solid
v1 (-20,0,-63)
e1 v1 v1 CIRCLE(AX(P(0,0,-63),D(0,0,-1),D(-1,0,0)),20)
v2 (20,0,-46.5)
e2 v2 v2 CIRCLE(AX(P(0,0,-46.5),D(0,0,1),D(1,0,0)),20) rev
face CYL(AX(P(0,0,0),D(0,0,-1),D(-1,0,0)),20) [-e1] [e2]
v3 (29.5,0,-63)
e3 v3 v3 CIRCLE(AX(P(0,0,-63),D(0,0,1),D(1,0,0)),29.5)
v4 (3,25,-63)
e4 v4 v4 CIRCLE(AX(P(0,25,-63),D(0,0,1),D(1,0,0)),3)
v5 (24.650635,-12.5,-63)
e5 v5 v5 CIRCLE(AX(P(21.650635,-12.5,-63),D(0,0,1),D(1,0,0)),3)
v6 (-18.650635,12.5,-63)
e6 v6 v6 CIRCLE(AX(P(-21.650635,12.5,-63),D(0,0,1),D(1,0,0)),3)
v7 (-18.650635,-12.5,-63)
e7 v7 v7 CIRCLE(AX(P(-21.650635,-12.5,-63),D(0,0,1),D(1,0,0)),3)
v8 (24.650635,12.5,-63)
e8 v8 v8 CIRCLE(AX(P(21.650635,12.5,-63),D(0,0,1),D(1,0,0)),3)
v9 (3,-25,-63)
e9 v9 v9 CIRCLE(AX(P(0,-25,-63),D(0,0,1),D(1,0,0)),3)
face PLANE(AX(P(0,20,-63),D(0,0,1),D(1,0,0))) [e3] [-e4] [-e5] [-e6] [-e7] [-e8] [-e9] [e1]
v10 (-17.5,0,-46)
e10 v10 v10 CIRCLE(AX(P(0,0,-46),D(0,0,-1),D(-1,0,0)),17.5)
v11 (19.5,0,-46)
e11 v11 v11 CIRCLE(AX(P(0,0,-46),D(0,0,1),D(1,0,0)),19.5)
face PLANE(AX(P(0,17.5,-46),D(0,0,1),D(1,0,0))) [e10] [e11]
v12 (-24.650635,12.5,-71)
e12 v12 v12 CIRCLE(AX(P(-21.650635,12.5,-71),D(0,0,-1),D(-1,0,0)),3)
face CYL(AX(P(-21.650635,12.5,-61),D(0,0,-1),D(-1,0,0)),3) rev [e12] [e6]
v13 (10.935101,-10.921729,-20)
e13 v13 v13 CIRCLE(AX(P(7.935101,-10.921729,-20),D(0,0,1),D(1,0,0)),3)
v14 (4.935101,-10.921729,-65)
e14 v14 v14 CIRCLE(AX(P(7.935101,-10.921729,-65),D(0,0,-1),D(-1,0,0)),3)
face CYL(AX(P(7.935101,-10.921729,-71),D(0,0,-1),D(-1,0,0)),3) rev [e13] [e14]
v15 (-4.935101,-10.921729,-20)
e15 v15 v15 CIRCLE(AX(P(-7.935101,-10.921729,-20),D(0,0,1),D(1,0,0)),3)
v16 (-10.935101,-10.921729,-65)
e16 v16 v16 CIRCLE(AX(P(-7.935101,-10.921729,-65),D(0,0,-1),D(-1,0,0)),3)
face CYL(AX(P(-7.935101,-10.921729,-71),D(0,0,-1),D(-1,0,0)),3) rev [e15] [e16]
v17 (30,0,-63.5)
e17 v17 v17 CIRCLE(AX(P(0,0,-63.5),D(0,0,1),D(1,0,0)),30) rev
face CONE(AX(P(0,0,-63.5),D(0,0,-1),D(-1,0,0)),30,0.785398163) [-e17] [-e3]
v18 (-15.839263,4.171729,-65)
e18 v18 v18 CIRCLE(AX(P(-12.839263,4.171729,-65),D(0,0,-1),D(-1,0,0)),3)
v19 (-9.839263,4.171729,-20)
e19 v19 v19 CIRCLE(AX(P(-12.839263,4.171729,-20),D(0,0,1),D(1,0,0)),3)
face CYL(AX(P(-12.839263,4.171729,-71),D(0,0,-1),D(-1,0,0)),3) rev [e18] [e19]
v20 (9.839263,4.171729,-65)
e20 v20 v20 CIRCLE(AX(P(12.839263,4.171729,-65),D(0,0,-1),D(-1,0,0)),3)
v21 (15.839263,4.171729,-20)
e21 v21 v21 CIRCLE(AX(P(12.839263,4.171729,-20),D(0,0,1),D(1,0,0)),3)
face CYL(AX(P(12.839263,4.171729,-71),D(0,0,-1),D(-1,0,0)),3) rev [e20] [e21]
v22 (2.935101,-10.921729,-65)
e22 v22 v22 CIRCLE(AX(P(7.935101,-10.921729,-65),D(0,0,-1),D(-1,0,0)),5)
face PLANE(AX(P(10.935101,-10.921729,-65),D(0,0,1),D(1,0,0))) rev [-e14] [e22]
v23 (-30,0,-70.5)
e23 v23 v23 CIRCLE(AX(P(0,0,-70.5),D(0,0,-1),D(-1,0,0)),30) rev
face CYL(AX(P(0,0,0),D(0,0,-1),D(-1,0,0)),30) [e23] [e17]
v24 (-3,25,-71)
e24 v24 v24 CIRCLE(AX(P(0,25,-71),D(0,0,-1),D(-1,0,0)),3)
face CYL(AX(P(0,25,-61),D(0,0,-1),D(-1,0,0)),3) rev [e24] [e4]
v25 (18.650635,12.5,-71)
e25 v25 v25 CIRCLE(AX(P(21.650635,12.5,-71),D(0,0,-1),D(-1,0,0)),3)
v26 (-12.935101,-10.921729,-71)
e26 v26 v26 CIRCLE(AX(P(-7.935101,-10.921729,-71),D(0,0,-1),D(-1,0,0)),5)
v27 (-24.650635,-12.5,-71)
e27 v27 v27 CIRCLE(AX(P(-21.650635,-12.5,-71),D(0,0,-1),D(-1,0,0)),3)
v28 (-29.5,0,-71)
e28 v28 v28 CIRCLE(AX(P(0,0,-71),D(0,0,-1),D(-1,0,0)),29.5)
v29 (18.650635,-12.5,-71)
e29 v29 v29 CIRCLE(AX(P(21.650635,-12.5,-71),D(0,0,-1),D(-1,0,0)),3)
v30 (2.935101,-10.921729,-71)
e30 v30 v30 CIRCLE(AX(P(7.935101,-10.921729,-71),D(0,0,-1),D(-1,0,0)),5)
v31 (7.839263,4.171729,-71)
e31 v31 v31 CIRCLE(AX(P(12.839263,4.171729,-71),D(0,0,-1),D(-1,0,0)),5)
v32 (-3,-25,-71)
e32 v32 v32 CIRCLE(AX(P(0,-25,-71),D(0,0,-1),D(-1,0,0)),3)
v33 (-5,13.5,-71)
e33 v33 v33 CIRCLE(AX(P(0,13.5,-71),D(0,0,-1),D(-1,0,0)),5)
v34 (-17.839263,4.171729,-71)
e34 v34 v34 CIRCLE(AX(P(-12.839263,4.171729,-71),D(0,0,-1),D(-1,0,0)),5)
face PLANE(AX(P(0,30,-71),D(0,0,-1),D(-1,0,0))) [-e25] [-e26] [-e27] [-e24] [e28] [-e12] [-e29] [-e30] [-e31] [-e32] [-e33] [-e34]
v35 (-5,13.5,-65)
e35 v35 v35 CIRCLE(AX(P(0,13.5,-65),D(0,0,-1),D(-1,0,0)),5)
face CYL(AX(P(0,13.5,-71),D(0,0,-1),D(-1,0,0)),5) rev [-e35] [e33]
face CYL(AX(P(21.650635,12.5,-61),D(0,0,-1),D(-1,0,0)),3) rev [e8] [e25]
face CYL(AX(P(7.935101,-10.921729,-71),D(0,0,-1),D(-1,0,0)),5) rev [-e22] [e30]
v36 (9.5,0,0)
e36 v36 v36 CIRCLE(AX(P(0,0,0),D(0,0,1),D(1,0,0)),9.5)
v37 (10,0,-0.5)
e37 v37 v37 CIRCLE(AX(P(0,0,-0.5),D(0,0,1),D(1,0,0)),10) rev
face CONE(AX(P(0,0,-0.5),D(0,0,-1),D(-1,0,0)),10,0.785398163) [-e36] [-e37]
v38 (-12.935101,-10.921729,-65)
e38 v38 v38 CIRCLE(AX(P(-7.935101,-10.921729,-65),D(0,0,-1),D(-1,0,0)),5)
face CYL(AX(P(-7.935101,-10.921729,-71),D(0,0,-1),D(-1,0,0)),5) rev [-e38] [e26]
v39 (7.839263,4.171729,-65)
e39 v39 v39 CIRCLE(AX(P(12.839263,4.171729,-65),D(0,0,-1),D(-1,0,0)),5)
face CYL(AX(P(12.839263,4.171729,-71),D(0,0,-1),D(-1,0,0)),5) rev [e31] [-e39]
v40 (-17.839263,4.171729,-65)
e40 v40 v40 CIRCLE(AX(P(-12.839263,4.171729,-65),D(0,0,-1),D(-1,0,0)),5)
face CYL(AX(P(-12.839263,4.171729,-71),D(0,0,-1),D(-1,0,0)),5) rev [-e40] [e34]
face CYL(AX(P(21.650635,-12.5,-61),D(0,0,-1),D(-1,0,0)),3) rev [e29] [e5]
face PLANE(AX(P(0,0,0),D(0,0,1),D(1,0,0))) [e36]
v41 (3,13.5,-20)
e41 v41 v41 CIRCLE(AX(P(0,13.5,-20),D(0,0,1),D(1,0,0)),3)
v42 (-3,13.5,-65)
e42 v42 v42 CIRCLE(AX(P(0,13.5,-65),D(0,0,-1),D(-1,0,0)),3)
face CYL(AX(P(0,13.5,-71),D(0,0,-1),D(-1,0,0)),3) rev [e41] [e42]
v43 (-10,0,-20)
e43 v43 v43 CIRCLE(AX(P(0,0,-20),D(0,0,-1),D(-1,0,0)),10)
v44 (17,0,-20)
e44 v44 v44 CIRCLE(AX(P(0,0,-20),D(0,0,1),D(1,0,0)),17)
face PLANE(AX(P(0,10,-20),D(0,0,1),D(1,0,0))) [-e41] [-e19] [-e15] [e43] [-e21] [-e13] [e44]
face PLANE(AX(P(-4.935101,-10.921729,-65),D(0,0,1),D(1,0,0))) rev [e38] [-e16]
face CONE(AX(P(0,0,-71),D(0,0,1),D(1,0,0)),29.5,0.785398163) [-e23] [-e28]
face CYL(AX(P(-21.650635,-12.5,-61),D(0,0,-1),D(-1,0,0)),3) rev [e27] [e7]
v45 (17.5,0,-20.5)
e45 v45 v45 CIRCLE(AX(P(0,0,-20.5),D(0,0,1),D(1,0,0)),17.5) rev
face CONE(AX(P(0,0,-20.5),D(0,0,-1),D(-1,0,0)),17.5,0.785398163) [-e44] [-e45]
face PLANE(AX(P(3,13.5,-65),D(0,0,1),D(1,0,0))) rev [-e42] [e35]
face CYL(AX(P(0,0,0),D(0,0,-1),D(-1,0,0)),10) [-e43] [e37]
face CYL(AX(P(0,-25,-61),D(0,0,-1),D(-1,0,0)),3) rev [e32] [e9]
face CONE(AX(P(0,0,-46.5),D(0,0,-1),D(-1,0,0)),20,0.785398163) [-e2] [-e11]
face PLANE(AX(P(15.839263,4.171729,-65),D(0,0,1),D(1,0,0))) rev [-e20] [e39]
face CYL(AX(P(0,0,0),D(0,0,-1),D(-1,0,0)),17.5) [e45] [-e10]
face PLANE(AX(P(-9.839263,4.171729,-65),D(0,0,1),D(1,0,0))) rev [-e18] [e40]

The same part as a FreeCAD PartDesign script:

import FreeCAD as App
import Part
import Sketcher


def edges_at(feature, points):
    """Names of the edges that pass closest to the given points."""
    edges = feature.Shape.Edges
    near = lambda p: min(range(len(edges)), key=lambda i: edges[i].distToShape(Part.Vertex(*p))[0])
    return sorted({f"Edge{near(p) + 1}" for p in points})


def add_polygon(sketch, points):
    """Adds a closed chain of lines whose ends are joined by coincident constraints."""
    first, n = sketch.GeometryCount, len(points)
    for a, b in zip(points, points[1:] + points[:1]):
        sketch.addGeometry(Part.LineSegment(App.Vector(*a, 0), App.Vector(*b, 0)), False)
    for i in range(n):
        sketch.addConstraint(Sketcher.Constraint("Coincident", first + i, 2, first + (i + 1) % n, 1))

doc = App.newDocument("Part")
params = doc.addObject("Spreadsheet::Sheet", "Params")
for row, (alias, value) in enumerate([
    ("sketch1_width", "10 mm"),
    ("sketch1_width2", "30 mm"),
    ("sketch1_height", "71 mm"),
    ("sketch1_height2", "8 mm"),
    ("sketch1_height3", "17 mm"),
    ("revolution_angle", "360 deg"),
    ("sketch2_diameter", "6 mm"),
    ("pocket1_length", "10 mm"),
    ("sketch3_diameter", "6 mm"),
    ("hole_diameter", "6 mm"),
    ("hole_cbore_diameter", "10 mm"),
    ("hole_cbore_depth", "6 mm"),
    ("chamfer_size", "0.5 mm"),
], start=1):
    params.set(f"A{row}", alias)
    params.set(f"B{row}", "=" + value)
    params.setAlias(f"B{row}", alias)

body = doc.addObject("PartDesign::Body", "Body")

# Sketch on YZ plane
sketch1 = body.newObject("Sketcher::SketchObject", "Sketch")
sketch1.AttachmentSupport = (doc.getObject("YZ_Plane"), [""])
sketch1.MapMode = "FlatFace"
add_polygon(sketch1, [(10, 0), (0, 0), (0, -71), (30, -71), (30, -63), (20, -63), (20, -46), (17.5, -46), (17.5, -20), (10, -20)])  # lines 0-9
sketch1.addConstraint([
    Sketcher.Constraint("Horizontal", 0),
    Sketcher.Constraint("Vertical", 1),
    Sketcher.Constraint("Horizontal", 2),
    Sketcher.Constraint("Vertical", 3),
    Sketcher.Constraint("Horizontal", 4),
    Sketcher.Constraint("Vertical", 5),
    Sketcher.Constraint("Horizontal", 6),
    Sketcher.Constraint("Vertical", 7),
    Sketcher.Constraint("Horizontal", 8),
    Sketcher.Constraint("Vertical", 9),
    Sketcher.Constraint("Coincident", 0, 2, -1, 1),
    Sketcher.Constraint("Equal", 0, 4),
    Sketcher.Constraint("DistanceX", 0, 2, 0, 1, 10.0),
    Sketcher.Constraint("DistanceX", 2, 1, 2, 2, 30.0),
    Sketcher.Constraint("DistanceY", 1, 2, 1, 1, 71.0),
    Sketcher.Constraint("DistanceY", 3, 1, 3, 2, 8.0),
    Sketcher.Constraint("DistanceY", 5, 1, 5, 2, 17.0),
    Sketcher.Constraint("DistanceY", 7, 1, 7, 2, 26.0),
    Sketcher.Constraint("DistanceX", 6, 2, 6, 1, 2.5),
])
sketch1.setExpression("Constraints[22]", "Params.sketch1_width")
sketch1.setExpression("Constraints[23]", "Params.sketch1_width2")
sketch1.setExpression("Constraints[24]", "Params.sketch1_height")
sketch1.setExpression("Constraints[25]", "Params.sketch1_height2")
sketch1.setExpression("Constraints[26]", "Params.sketch1_height3")
revolution = body.newObject("PartDesign::Revolution", "Revolution")
revolution.Profile = sketch1
revolution.ReferenceAxis = (sketch1, ["V_Axis"])
revolution.setExpression("Angle", "Params.revolution_angle")

# Sketch on XY plane
sketch2 = body.newObject("Sketcher::SketchObject", "Sketch001")
sketch2.AttachmentSupport = (doc.getObject("XY_Plane"), [""])
sketch2.MapMode = "FlatFace"
sketch2.AttachmentOffset = App.Placement(App.Vector(0, 0, -71), App.Rotation())
sketch2.addGeometry([
    Part.Circle(App.Vector(0, 25, 0), App.Vector(0, 0, 1), 3),  # 0
    Part.Circle(App.Vector(-21.650635, 12.5, 0), App.Vector(0, 0, 1), 3),  # 1
    Part.Circle(App.Vector(-21.650635, -12.5, 0), App.Vector(0, 0, 1), 3),  # 2
    Part.Circle(App.Vector(0, -25, 0), App.Vector(0, 0, 1), 3),  # 3
    Part.Circle(App.Vector(21.650635, -12.5, 0), App.Vector(0, 0, 1), 3),  # 4
    Part.Circle(App.Vector(21.650635, 12.5, 0), App.Vector(0, 0, 1), 3),  # 5
], False)
sketch2.addConstraint([
    Sketcher.Constraint("Equal", 0, 1),
    Sketcher.Constraint("Equal", 1, 2),
    Sketcher.Constraint("Equal", 2, 3),
    Sketcher.Constraint("Equal", 3, 4),
    Sketcher.Constraint("Equal", 4, 5),
    Sketcher.Constraint("Symmetric", 0, 3, 3, 3, -1, 1),
    Sketcher.Constraint("Symmetric", 1, 3, 4, 3, -1, 1),
    Sketcher.Constraint("Symmetric", 2, 3, 5, 3, -1, 1),
    Sketcher.Constraint("Symmetric", 2, 3, 4, 3, -2),
    Sketcher.Constraint("PointOnObject", 0, 3, -2),
    Sketcher.Constraint("Diameter", 0, 6.0),
    Sketcher.Constraint("DistanceY", -1, 1, 0, 3, 25.0),
    Sketcher.Constraint("DistanceY", 2, 3, 1, 3, 25.0),
    Sketcher.Constraint("DistanceX", 2, 3, 4, 3, 43.30127),
])
sketch2.setExpression("Constraints[10]", "Params.sketch2_diameter")
pocket1 = body.newObject("PartDesign::Pocket", "Pocket")
pocket1.Profile = sketch2
pocket1.setExpression("Length", "Params.pocket1_length")
pocket1.Reversed = True

# Sketch on XY plane
sketch3 = body.newObject("Sketcher::SketchObject", "Sketch002")
sketch3.AttachmentSupport = (doc.getObject("XY_Plane"), [""])
sketch3.MapMode = "FlatFace"
sketch3.AttachmentOffset = App.Placement(App.Vector(0, 0, -71), App.Rotation())
sketch3.addGeometry(Part.Circle(App.Vector(0, 13.5, 0), App.Vector(0, 0, 1), 3), False)
sketch3.addConstraint([
    Sketcher.Constraint("PointOnObject", 0, 3, -2),
    Sketcher.Constraint("Diameter", 0, 6.0),
    Sketcher.Constraint("DistanceY", -1, 1, 0, 3, 13.5),
])
sketch3.setExpression("Constraints[1]", "Params.sketch3_diameter")
doc.recompute()
hole = body.newObject("PartDesign::Hole", "Hole")
hole.Profile = sketch3
hole.ThreadType = "None"
hole.setExpression("Diameter", "Params.hole_diameter")
hole.DepthType = "ThroughAll"
hole.HoleCutType = "Counterbore"
hole.setExpression("HoleCutDiameter", "Params.hole_cbore_diameter")
hole.setExpression("HoleCutDepth", "Params.hole_cbore_depth")
hole.Reversed = True
doc.recompute()

polarpattern = body.newObject("PartDesign::PolarPattern", "PolarPattern")
polarpattern.Originals = [hole]
polarpattern.Axis = (doc.getObject("Z_Axis"), [""])
polarpattern.Angle = 360
polarpattern.Occurrences = 5
body.Tip = polarpattern
doc.recompute()

chamfer = body.newObject("PartDesign::Chamfer", "Chamfer")
chamfer.Base = (polarpattern, edges_at(polarpattern, [
    (17.5, 0, -20),
    (10, 0, 0),
    (30, 0, -71),
    (30, 0, -63),
    (20, 0, -46),
]))
chamfer.setExpression("Size", "Params.chamfer_size")

doc.recompute()
